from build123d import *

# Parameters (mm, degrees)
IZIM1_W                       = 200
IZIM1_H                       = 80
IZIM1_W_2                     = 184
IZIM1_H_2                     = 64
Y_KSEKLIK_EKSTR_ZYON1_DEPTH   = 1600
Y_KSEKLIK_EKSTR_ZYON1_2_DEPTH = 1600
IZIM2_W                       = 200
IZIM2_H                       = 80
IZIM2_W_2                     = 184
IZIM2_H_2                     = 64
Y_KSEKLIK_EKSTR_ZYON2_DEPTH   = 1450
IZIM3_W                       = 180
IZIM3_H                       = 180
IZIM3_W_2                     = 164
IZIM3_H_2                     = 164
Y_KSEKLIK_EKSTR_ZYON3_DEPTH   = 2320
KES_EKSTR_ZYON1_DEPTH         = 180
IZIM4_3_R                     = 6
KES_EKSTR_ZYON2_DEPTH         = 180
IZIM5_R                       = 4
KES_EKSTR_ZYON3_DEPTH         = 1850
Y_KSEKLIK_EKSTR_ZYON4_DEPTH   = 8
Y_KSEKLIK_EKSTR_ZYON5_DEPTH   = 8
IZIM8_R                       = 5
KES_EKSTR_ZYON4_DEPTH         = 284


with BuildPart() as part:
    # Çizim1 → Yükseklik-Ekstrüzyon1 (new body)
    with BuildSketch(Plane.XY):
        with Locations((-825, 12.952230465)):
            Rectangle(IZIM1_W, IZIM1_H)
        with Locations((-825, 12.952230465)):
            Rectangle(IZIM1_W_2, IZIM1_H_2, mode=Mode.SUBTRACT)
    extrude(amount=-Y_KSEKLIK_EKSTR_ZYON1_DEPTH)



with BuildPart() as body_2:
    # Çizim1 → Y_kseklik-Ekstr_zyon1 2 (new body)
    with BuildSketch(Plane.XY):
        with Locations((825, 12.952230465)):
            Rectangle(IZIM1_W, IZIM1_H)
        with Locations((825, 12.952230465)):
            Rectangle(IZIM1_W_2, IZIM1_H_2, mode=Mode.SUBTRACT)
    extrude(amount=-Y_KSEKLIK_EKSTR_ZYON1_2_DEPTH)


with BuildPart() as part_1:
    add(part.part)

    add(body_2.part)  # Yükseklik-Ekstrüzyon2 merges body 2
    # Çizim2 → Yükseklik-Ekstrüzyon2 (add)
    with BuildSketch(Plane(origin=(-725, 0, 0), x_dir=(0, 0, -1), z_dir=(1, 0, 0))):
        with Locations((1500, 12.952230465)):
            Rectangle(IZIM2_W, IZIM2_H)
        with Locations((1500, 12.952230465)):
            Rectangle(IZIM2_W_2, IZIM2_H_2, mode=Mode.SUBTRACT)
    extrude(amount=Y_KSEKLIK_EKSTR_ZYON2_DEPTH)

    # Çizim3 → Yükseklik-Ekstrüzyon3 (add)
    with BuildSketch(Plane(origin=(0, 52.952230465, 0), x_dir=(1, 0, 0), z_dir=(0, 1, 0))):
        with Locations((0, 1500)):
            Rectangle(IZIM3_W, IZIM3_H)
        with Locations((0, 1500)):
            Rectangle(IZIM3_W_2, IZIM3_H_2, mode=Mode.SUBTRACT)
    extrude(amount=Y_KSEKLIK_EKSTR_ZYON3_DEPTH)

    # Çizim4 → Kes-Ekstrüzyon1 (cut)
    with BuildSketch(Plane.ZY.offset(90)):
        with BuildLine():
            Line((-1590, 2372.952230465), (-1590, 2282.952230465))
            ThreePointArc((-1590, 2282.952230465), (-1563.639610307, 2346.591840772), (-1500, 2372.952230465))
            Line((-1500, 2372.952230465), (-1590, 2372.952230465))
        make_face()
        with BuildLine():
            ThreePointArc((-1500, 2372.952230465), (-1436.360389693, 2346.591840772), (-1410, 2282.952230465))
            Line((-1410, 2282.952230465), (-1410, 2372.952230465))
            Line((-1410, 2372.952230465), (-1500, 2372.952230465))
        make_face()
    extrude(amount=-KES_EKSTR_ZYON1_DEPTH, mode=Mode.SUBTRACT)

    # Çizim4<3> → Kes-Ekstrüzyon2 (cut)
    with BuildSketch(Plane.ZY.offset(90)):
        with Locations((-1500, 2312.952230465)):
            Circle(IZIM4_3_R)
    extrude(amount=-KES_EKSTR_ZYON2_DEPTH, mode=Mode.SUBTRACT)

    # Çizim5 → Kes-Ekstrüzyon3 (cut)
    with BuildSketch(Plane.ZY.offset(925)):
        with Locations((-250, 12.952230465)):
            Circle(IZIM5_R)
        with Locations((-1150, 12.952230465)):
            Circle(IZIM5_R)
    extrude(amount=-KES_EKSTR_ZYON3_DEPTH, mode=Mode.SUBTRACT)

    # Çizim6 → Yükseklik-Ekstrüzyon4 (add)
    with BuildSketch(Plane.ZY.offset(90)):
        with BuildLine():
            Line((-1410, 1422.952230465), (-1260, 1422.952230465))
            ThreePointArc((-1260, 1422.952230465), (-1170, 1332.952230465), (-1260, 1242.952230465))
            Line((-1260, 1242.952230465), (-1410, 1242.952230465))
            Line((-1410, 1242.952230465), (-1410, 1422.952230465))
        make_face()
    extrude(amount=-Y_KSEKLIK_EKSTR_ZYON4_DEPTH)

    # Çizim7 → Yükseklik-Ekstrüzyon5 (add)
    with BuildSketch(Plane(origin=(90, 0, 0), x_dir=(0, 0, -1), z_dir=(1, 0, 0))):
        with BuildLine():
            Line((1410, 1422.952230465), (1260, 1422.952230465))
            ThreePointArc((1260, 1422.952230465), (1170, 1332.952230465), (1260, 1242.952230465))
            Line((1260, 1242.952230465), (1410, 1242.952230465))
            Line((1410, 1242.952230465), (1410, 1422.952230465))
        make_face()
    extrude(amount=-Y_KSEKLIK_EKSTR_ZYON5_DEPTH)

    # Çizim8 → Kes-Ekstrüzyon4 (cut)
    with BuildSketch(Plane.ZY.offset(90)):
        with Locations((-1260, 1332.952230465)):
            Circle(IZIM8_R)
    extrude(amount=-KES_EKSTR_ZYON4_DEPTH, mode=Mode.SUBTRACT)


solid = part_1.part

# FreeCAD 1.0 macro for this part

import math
import FreeCAD as App
import Part
import Sketcher

doc = App.newDocument("Part")
body = doc.addObject("PartDesign::Body", "Body")

# Sketch on XY plane
sketch1 = body.newObject("Sketcher::SketchObject", "Sketch")
sketch1.AttachmentSupport = (doc.getObject("XY_Plane"), [""])
sketch1.MapMode = "FlatFace"
sketch1.addGeometry([
    Part.LineSegment(App.Vector(-925, 52.95223, 0), App.Vector(-925, -27.04777, 0)),  # 0
    Part.LineSegment(App.Vector(-925, -27.04777, 0), App.Vector(-725, -27.04777, 0)),  # 1
    Part.LineSegment(App.Vector(-725, -27.04777, 0), App.Vector(-725, 52.95223, 0)),  # 2
    Part.LineSegment(App.Vector(-725, 52.95223, 0), App.Vector(-925, 52.95223, 0)),  # 3
    Part.LineSegment(App.Vector(-733, -19.04777, 0), App.Vector(-917, -19.04777, 0)),  # 4
    Part.LineSegment(App.Vector(-917, -19.04777, 0), App.Vector(-917, 44.95223, 0)),  # 5
    Part.LineSegment(App.Vector(-917, 44.95223, 0), App.Vector(-733, 44.95223, 0)),  # 6
    Part.LineSegment(App.Vector(-733, 44.95223, 0), App.Vector(-733, -19.04777, 0)),  # 7
], False)
sketch1.addConstraint([
    Sketcher.Constraint("Coincident", 0, 2, 1, 1),
    Sketcher.Constraint("Coincident", 1, 2, 2, 1),
    Sketcher.Constraint("Coincident", 2, 2, 3, 1),
    Sketcher.Constraint("Coincident", 3, 2, 0, 1),
    Sketcher.Constraint("Coincident", 4, 2, 5, 1),
    Sketcher.Constraint("Coincident", 5, 2, 6, 1),
    Sketcher.Constraint("Coincident", 6, 2, 7, 1),
    Sketcher.Constraint("Coincident", 7, 2, 4, 1),
    Sketcher.Constraint("Vertical", 0),
    Sketcher.Constraint("Horizontal", 1),
    Sketcher.Constraint("Vertical", 2),
    Sketcher.Constraint("Horizontal", 3),
    Sketcher.Constraint("Horizontal", 4),
    Sketcher.Constraint("Vertical", 5),
    Sketcher.Constraint("Horizontal", 6),
    Sketcher.Constraint("Vertical", 7),
    Sketcher.Constraint("DistanceX", 1, 1, 1, 2, 200.0),
    Sketcher.Constraint("DistanceX", 4, 2, 4, 1, 184.0),
    Sketcher.Constraint("DistanceY", 0, 2, 0, 1, 80.0),
    Sketcher.Constraint("DistanceY", 5, 1, 5, 2, 64.0),
    Sketcher.Constraint("DistanceX", 0, 2, -1, 1, 925.0),
    Sketcher.Constraint("DistanceX", 4, 2, -1, 1, 917.0),
    Sketcher.Constraint("DistanceY", 0, 2, 4, 2, 8.0),
    Sketcher.Constraint("DistanceY", 0, 2, -1, 1, 27.04777),
])
pad1 = body.newObject("PartDesign::Pad", "Pad")
pad1.Profile = sketch1
pad1.Length = 1600
pad1.Reversed = True
body2 = doc.addObject("PartDesign::Body", "Body001")

# Sketch on XY plane
sketch2 = body2.newObject("Sketcher::SketchObject", "Sketch001")
sketch2.AttachmentSupport = (doc.getObject("XY_Plane001"), [""])
sketch2.MapMode = "FlatFace"
sketch2.addGeometry([
    Part.LineSegment(App.Vector(725, 52.95223, 0), App.Vector(725, -27.04777, 0)),  # 0
    Part.LineSegment(App.Vector(725, -27.04777, 0), App.Vector(925, -27.04777, 0)),  # 1
    Part.LineSegment(App.Vector(925, -27.04777, 0), App.Vector(925, 52.95223, 0)),  # 2
    Part.LineSegment(App.Vector(925, 52.95223, 0), App.Vector(725, 52.95223, 0)),  # 3
    Part.LineSegment(App.Vector(917, -19.04777, 0), App.Vector(733, -19.04777, 0)),  # 4
    Part.LineSegment(App.Vector(733, -19.04777, 0), App.Vector(733, 44.95223, 0)),  # 5
    Part.LineSegment(App.Vector(733, 44.95223, 0), App.Vector(917, 44.95223, 0)),  # 6
    Part.LineSegment(App.Vector(917, 44.95223, 0), App.Vector(917, -19.04777, 0)),  # 7
], False)
sketch2.addConstraint([
    Sketcher.Constraint("Coincident", 0, 2, 1, 1),
    Sketcher.Constraint("Coincident", 1, 2, 2, 1),
    Sketcher.Constraint("Coincident", 2, 2, 3, 1),
    Sketcher.Constraint("Coincident", 3, 2, 0, 1),
    Sketcher.Constraint("Coincident", 4, 2, 5, 1),
    Sketcher.Constraint("Coincident", 5, 2, 6, 1),
    Sketcher.Constraint("Coincident", 6, 2, 7, 1),
    Sketcher.Constraint("Coincident", 7, 2, 4, 1),
    Sketcher.Constraint("Vertical", 0),
    Sketcher.Constraint("Horizontal", 1),
    Sketcher.Constraint("Vertical", 2),
    Sketcher.Constraint("Horizontal", 3),
    Sketcher.Constraint("Horizontal", 4),
    Sketcher.Constraint("Vertical", 5),
    Sketcher.Constraint("Horizontal", 6),
    Sketcher.Constraint("Vertical", 7),
    Sketcher.Constraint("DistanceX", 1, 1, 1, 2, 200.0),
    Sketcher.Constraint("DistanceX", 4, 2, 4, 1, 184.0),
    Sketcher.Constraint("DistanceY", 0, 2, 0, 1, 80.0),
    Sketcher.Constraint("DistanceY", 5, 1, 5, 2, 64.0),
    Sketcher.Constraint("DistanceX", -1, 1, 0, 2, 725.0),
    Sketcher.Constraint("DistanceX", -1, 1, 4, 2, 733.0),
    Sketcher.Constraint("DistanceY", 0, 2, 4, 2, 8.0),
    Sketcher.Constraint("DistanceY", 0, 2, -1, 1, 27.04777),
])
pad2 = body2.newObject("PartDesign::Pad", "Pad001")
pad2.Profile = sketch2
pad2.Length = 1600
pad2.Reversed = True
body.AllowCompound = True
doc.recompute()

boolean = body.newObject("PartDesign::Boolean", "Boolean")
boolean.Type = "Fuse"
boolean.addObjects([body2])

# Sketch on YZ plane
sketch3 = body.newObject("Sketcher::SketchObject", "Sketch002")
sketch3.AttachmentSupport = (doc.getObject("YZ_Plane"), [""])
sketch3.MapMode = "FlatFace"
sketch3.AttachmentOffset = App.Placement(App.Vector(0, 0, -725), App.Rotation())
sketch3.addGeometry([
    Part.LineSegment(App.Vector(52.95223, -1400, 0), App.Vector(-27.04777, -1400, 0)),  # 0
    Part.LineSegment(App.Vector(-27.04777, -1400, 0), App.Vector(-27.04777, -1600, 0)),  # 1
    Part.LineSegment(App.Vector(-27.04777, -1600, 0), App.Vector(52.95223, -1600, 0)),  # 2
    Part.LineSegment(App.Vector(52.95223, -1600, 0), App.Vector(52.95223, -1400, 0)),  # 3
    Part.LineSegment(App.Vector(-19.04777, -1592, 0), App.Vector(-19.04777, -1408, 0)),  # 4
    Part.LineSegment(App.Vector(-19.04777, -1408, 0), App.Vector(44.95223, -1408, 0)),  # 5
    Part.LineSegment(App.Vector(44.95223, -1408, 0), App.Vector(44.95223, -1592, 0)),  # 6
    Part.LineSegment(App.Vector(44.95223, -1592, 0), App.Vector(-19.04777, -1592, 0)),  # 7
], False)
sketch3.addConstraint([
    Sketcher.Constraint("Coincident", 0, 2, 1, 1),
    Sketcher.Constraint("Coincident", 1, 2, 2, 1),
    Sketcher.Constraint("Coincident", 2, 2, 3, 1),
    Sketcher.Constraint("Coincident", 3, 2, 0, 1),
    Sketcher.Constraint("Coincident", 4, 2, 5, 1),
    Sketcher.Constraint("Coincident", 5, 2, 6, 1),
    Sketcher.Constraint("Coincident", 6, 2, 7, 1),
    Sketcher.Constraint("Coincident", 7, 2, 4, 1),
    Sketcher.Constraint("Horizontal", 0),
    Sketcher.Constraint("Vertical", 1),
    Sketcher.Constraint("Horizontal", 2),
    Sketcher.Constraint("Vertical", 3),
    Sketcher.Constraint("Vertical", 4),
    Sketcher.Constraint("Horizontal", 5),
    Sketcher.Constraint("Vertical", 6),
    Sketcher.Constraint("Horizontal", 7),
    Sketcher.Constraint("DistanceX", 0, 2, 0, 1, 80.0),
    Sketcher.Constraint("DistanceX", 5, 1, 5, 2, 64.0),
    Sketcher.Constraint("DistanceY", 1, 2, 1, 1, 200.0),
    Sketcher.Constraint("DistanceY", 4, 1, 4, 2, 184.0),
    Sketcher.Constraint("DistanceY", 0, 2, -1, 1, 1400.0),
    Sketcher.Constraint("DistanceY", 4, 2, -1, 1, 1408.0),
    Sketcher.Constraint("DistanceX", 0, 2, 4, 2, 8.0),
    Sketcher.Constraint("DistanceX", 0, 2, -1, 1, 27.04777),
])
pad3 = body.newObject("PartDesign::Pad", "Pad002")
pad3.Profile = sketch3
pad3.Length = 1450

# Sketch on XZ plane
sketch4 = body.newObject("Sketcher::SketchObject", "Sketch003")
sketch4.AttachmentSupport = (doc.getObject("XZ_Plane"), [""])
sketch4.MapMode = "FlatFace"
sketch4.AttachmentOffset = App.Placement(App.Vector(0, 0, -52.95223), App.Rotation())
sketch4.addGeometry([
    Part.LineSegment(App.Vector(-90, -1590, 0), App.Vector(-90, -1410, 0)),  # 0
    Part.LineSegment(App.Vector(-90, -1410, 0), App.Vector(90, -1410, 0)),  # 1
    Part.LineSegment(App.Vector(90, -1410, 0), App.Vector(90, -1590, 0)),  # 2
    Part.LineSegment(App.Vector(90, -1590, 0), App.Vector(-90, -1590, 0)),  # 3
    Part.LineSegment(App.Vector(82, -1418, 0), App.Vector(-82, -1418, 0)),  # 4
    Part.LineSegment(App.Vector(-82, -1418, 0), App.Vector(-82, -1582, 0)),  # 5
    Part.LineSegment(App.Vector(-82, -1582, 0), App.Vector(82, -1582, 0)),  # 6
    Part.LineSegment(App.Vector(82, -1582, 0), App.Vector(82, -1418, 0)),  # 7
], False)
sketch4.addConstraint([
    Sketcher.Constraint("Coincident", 0, 2, 1, 1),
    Sketcher.Constraint("Coincident", 1, 2, 2, 1),
    Sketcher.Constraint("Coincident", 2, 2, 3, 1),
    Sketcher.Constraint("Coincident", 3, 2, 0, 1),
    Sketcher.Constraint("Coincident", 4, 2, 5, 1),
    Sketcher.Constraint("Coincident", 5, 2, 6, 1),
    Sketcher.Constraint("Coincident", 6, 2, 7, 1),
    Sketcher.Constraint("Coincident", 7, 2, 4, 1),
    Sketcher.Constraint("Vertical", 0),
    Sketcher.Constraint("Horizontal", 1),
    Sketcher.Constraint("Vertical", 2),
    Sketcher.Constraint("Horizontal", 3),
    Sketcher.Constraint("Horizontal", 4),
    Sketcher.Constraint("Vertical", 5),
    Sketcher.Constraint("Horizontal", 6),
    Sketcher.Constraint("Vertical", 7),
    Sketcher.Constraint("Equal", 3, 0),
    Sketcher.Constraint("Equal", 6, 5),
    Sketcher.Constraint("DistanceX", 1, 1, 1, 2, 180.0),
    Sketcher.Constraint("DistanceX", 4, 2, 4, 1, 164.0),
    Sketcher.Constraint("DistanceX", 0, 2, -1, 1, 90.0),
    Sketcher.Constraint("DistanceY", 0, 2, -1, 1, 1410.0),
    Sketcher.Constraint("DistanceX", 4, 2, -1, 1, 82.0),
    Sketcher.Constraint("DistanceY", 4, 2, -1, 1, 1418.0),
])
pad4 = body.newObject("PartDesign::Pad", "Pad003")
pad4.Profile = sketch4
pad4.Length = 2320
pad4.Reversed = True

# Sketch on YZ plane
sketch5 = body.newObject("Sketcher::SketchObject", "Sketch004")
sketch5.AttachmentSupport = (doc.getObject("YZ_Plane"), [""])
sketch5.MapMode = "FlatFace"
sketch5.AttachmentOffset = App.Placement(App.Vector(0, 0, -90), App.Rotation())
sketch5.addGeometry([
    Part.LineSegment(App.Vector(2372.95223, -1590, 0), App.Vector(2282.95223, -1590, 0)),  # 0
    Part.ArcOfCircle(Part.Circle(App.Vector(2282.95223, -1500, 0), App.Vector(0, 0, 1), 90), math.radians(-90), math.radians(0)),  # 1
    Part.LineSegment(App.Vector(2372.95223, -1500, 0), App.Vector(2372.95223, -1590, 0)),  # 2
    Part.ArcOfCircle(Part.Circle(App.Vector(2282.95223, -1500, 0), App.Vector(0, 0, 1), 90), math.radians(0), math.radians(90)),  # 3
    Part.LineSegment(App.Vector(2282.95223, -1410, 0), App.Vector(2372.95223, -1410, 0)),  # 4
    Part.LineSegment(App.Vector(2372.95223, -1410, 0), App.Vector(2372.95223, -1500, 0)),  # 5
], False)
sketch5.addConstraint([
    Sketcher.Constraint("Tangent", 0, 2, 1, 1),
    Sketcher.Constraint("Tangent", 1, 2, 2, 1),
    Sketcher.Constraint("Coincident", 2, 2, 0, 1),
    Sketcher.Constraint("Tangent", 3, 2, 4, 1),
    Sketcher.Constraint("Coincident", 4, 2, 5, 1),
    Sketcher.Constraint("Tangent", 5, 2, 3, 1),
    Sketcher.Constraint("Horizontal", 0),
    Sketcher.Constraint("Vertical", 2),
    Sketcher.Constraint("Horizontal", 4),
    Sketcher.Constraint("Vertical", 5),
    Sketcher.Constraint("Coincident", 3, 3, 1, 3),
    Sketcher.Constraint("Equal", 1, 3),
    Sketcher.Constraint("Radius", 1, 90.0),
    Sketcher.Constraint("DistanceY", 1, 3, -1, 1, 1500.0),
    Sketcher.Constraint("DistanceX", -1, 1, 1, 3, 2282.95223),
])
pocket1 = body.newObject("PartDesign::Pocket", "Pocket")
pocket1.Profile = sketch5
pocket1.Length = 180
pocket1.Reversed = True

# Sketch on YZ plane
sketch6 = body.newObject("Sketcher::SketchObject", "Sketch005")
sketch6.AttachmentSupport = (doc.getObject("YZ_Plane"), [""])
sketch6.MapMode = "FlatFace"
sketch6.AttachmentOffset = App.Placement(App.Vector(0, 0, -90), App.Rotation())
sketch6.addGeometry(Part.Circle(App.Vector(2312.95223, -1500, 0), App.Vector(0, 0, 1), 6), False)
sketch6.addConstraint([
    Sketcher.Constraint("Diameter", 0, 12.0),
    Sketcher.Constraint("DistanceY", 0, 3, -1, 1, 1500.0),
    Sketcher.Constraint("DistanceX", -1, 1, 0, 3, 2312.95223),
])
pocket2 = body.newObject("PartDesign::Pocket", "Pocket001")
pocket2.Profile = sketch6
pocket2.Length = 180
pocket2.Reversed = True

# Sketch on YZ plane
sketch7 = body.newObject("Sketcher::SketchObject", "Sketch006")
sketch7.AttachmentSupport = (doc.getObject("YZ_Plane"), [""])
sketch7.MapMode = "FlatFace"
sketch7.AttachmentOffset = App.Placement(App.Vector(0, 0, -925), App.Rotation())
sketch7.addGeometry([
    Part.Circle(App.Vector(12.95223, -250, 0), App.Vector(0, 0, 1), 4),
    Part.Circle(App.Vector(12.95223, -1150, 0), App.Vector(0, 0, 1), 4),
], False)
sketch7.addConstraint([
    Sketcher.Constraint("Equal", 0, 1),
    Sketcher.Constraint("Vertical", 0, 3, 1, 3),
    Sketcher.Constraint("Diameter", 0, 8.0),
    Sketcher.Constraint("DistanceY", 0, 3, -1, 1, 250.0),
    Sketcher.Constraint("DistanceY", 1, 3, -1, 1, 1150.0),
    Sketcher.Constraint("DistanceX", -1, 1, 0, 3, 12.95223),
])
pocket3 = body.newObject("PartDesign::Pocket", "Pocket002")
pocket3.Profile = sketch7
pocket3.Length = 1850
pocket3.Reversed = True

# Sketch on YZ plane
sketch8 = body.newObject("Sketcher::SketchObject", "Sketch007")
sketch8.AttachmentSupport = (doc.getObject("YZ_Plane"), [""])
sketch8.MapMode = "FlatFace"
sketch8.AttachmentOffset = App.Placement(App.Vector(0, 0, -90), App.Rotation())
sketch8.addGeometry([
    Part.LineSegment(App.Vector(1422.95223, -1260, 0), App.Vector(1422.95223, -1410, 0)),
    Part.LineSegment(App.Vector(1422.95223, -1410, 0), App.Vector(1242.95223, -1410, 0)),
    Part.LineSegment(App.Vector(1242.95223, -1410, 0), App.Vector(1242.95223, -1260, 0)),
    Part.ArcOfCircle(Part.Circle(App.Vector(1332.95223, -1260, 0), App.Vector(0, 0, 1), 90), math.radians(0), math.radians(180)),
], False)
sketch8.addConstraint([
    Sketcher.Constraint("Coincident", 0, 2, 1, 1),
    Sketcher.Constraint("Coincident", 1, 2, 2, 1),
    Sketcher.Constraint("Tangent", 2, 2, 3, 2),
    Sketcher.Constraint("Tangent", 3, 1, 0, 1),
    Sketcher.Constraint("Vertical", 0),
    Sketcher.Constraint("Horizontal", 1),
    Sketcher.Constraint("Vertical", 2),
    Sketcher.Constraint("Radius", 3, 90.0),
    Sketcher.Constraint("DistanceY", 0, 2, 0, 1, 150.0),
    Sketcher.Constraint("DistanceY", 3, 3, -1, 1, 1260.0),
    Sketcher.Constraint("DistanceX", -1, 1, 3, 3, 1332.95223),
])
pad5 = body.newObject("PartDesign::Pad", "Pad004")
pad5.Profile = sketch8
pad5.Length = 8

# Sketch on YZ plane
sketch9 = body.newObject("Sketcher::SketchObject", "Sketch008")
sketch9.AttachmentSupport = (doc.getObject("YZ_Plane"), [""])
sketch9.MapMode = "FlatFace"
sketch9.AttachmentOffset = App.Placement(App.Vector(0, 0, 90), App.Rotation())
sketch9.addGeometry([
    Part.LineSegment(App.Vector(1422.95223, -1410, 0), App.Vector(1422.95223, -1260, 0)),
    Part.ArcOfCircle(Part.Circle(App.Vector(1332.95223, -1260, 0), App.Vector(0, 0, 1), 90), math.radians(0), math.radians(180)),
    Part.LineSegment(App.Vector(1242.95223, -1260, 0), App.Vector(1242.95223, -1410, 0)),
    Part.LineSegment(App.Vector(1242.95223, -1410, 0), App.Vector(1422.95223, -1410, 0)),
], False)
sketch9.addConstraint([
    Sketcher.Constraint("Tangent", 0, 2, 1, 1),
    Sketcher.Constraint("Tangent", 1, 2, 2, 1),
    Sketcher.Constraint("Coincident", 2, 2, 3, 1),
    Sketcher.Constraint("Coincident", 3, 2, 0, 1),
    Sketcher.Constraint("Vertical", 0),
    Sketcher.Constraint("Vertical", 2),
    Sketcher.Constraint("Horizontal", 3),
    Sketcher.Constraint("Radius", 1, 90.0),
    Sketcher.Constraint("DistanceY", 0, 1, 0, 2, 150.0),
    Sketcher.Constraint("DistanceY", 1, 3, -1, 1, 1260.0),
    Sketcher.Constraint("DistanceX", -1, 1, 1, 3, 1332.95223),
])
pad6 = body.newObject("PartDesign::Pad", "Pad005")
pad6.Profile = sketch9
pad6.Length = 8
pad6.Reversed = True

# Sketch on YZ plane
sketch10 = body.newObject("Sketcher::SketchObject", "Sketch009")
sketch10.AttachmentSupport = (doc.getObject("YZ_Plane"), [""])
sketch10.MapMode = "FlatFace"
sketch10.AttachmentOffset = App.Placement(App.Vector(0, 0, -90), App.Rotation())
sketch10.addGeometry(Part.Circle(App.Vector(1332.95223, -1260, 0), App.Vector(0, 0, 1), 5), False)
sketch10.addConstraint([
    Sketcher.Constraint("Diameter", 0, 10.0),
    Sketcher.Constraint("DistanceY", 0, 3, -1, 1, 1260.0),
    Sketcher.Constraint("DistanceX", -1, 1, 0, 3, 1332.95223),
])
pocket4 = body.newObject("PartDesign::Pocket", "Pocket003")
pocket4.Profile = sketch10
pocket4.Length = 284
pocket4.Reversed = True

doc.recompute()
